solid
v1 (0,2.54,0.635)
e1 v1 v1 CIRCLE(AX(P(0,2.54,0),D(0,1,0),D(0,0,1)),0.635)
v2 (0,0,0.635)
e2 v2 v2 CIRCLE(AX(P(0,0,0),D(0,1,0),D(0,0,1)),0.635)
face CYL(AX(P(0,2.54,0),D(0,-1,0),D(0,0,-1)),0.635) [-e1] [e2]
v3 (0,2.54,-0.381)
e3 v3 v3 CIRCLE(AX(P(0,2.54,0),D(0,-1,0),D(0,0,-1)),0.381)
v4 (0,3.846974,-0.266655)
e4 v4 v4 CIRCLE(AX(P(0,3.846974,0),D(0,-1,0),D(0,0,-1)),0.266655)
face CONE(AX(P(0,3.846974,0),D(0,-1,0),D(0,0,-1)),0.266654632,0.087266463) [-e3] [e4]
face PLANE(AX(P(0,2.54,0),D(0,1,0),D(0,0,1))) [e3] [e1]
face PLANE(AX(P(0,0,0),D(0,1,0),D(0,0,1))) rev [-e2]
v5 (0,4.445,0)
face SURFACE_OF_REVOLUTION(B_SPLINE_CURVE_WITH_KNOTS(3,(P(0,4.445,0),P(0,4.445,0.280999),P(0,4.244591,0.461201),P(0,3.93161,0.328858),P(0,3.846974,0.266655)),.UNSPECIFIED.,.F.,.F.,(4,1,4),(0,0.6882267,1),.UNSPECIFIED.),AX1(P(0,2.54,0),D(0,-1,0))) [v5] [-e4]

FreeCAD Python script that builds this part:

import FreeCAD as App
import Part
import Sketcher

V = App.Vector
Q = App.Units.Quantity

doc = App.newDocument("Part")
body = doc.addObject("PartDesign::Body", "Body")

sketch1 = doc.addObject("Sketcher::SketchObject", "Sketch")
body.addObject(sketch1)
sketch1.AttachmentSupport = (doc.XZ_Plane, [""])
sketch1.MapMode = "FlatFace"
sketch1.addGeometry(Part.Circle(V(0, 0, 0), V(0, 0, 1), 0.6), False)
sketch1.addConstraint([
    Sketcher.Constraint("Coincident", 0, 3, -1, 1),
    Sketcher.Constraint("Diameter", 0, Q("0.05 in")),
])
pad1 = doc.addObject("PartDesign::Pad", "Pad")
body.addObject(pad1)
pad1.Profile = sketch1
pad1.Length = Q("0.1 in")
pad1.Reversed = True

sketch2 = doc.addObject("Sketcher::SketchObject", "Sketch001")
body.addObject(sketch2)
sketch2.AttachmentSupport = (doc.YZ_Plane, [""])
sketch2.MapMode = "FlatFace"
sketch2.addGeometry([
    Part.LineSegment(V(3.846974, 0.266655, 0), V(2.54, 0.381, 0)),
    Part.LineSegment(V(2.54, 0.381, 0), V(2.54, 0, 0)),
    Part.LineSegment(V(2.54, 0, 0), V(4.445, 0, 0)),
    Part.BSplineCurve([V(3.846974, 0.266655, 0), V(3.93161, 0.328858, 0), V(4.244591, 0.461201, 0), V(4.445, 0.280999, 0), V(4.445, 0, 0)], [4, 1, 4], [0, 0.3117733, 1], False, 3, [1, 1, 1, 1, 1], False),
], False)
sketch2.addConstraint([
    Sketcher.Constraint("Block", 3),
    Sketcher.Constraint("Coincident", 0, 2, 1, 1),
    Sketcher.Constraint("Coincident", 1, 2, 2, 1),
    Sketcher.Constraint("Coincident", 2, 2, 3, 2),
    Sketcher.Constraint("Coincident", 3, 1, 0, 1),
    Sketcher.Constraint("Vertical", 1),
    Sketcher.Constraint("Horizontal", 2),
    Sketcher.Constraint("DistanceX", -1, 1, 0, 2, Q("0.1 in")),
    Sketcher.Constraint("DistanceY", 1, 2, 1, 1, Q("0.015 in")),
])
revolution = doc.addObject("PartDesign::Revolution", "Revolution")
body.addObject(revolution)
revolution.Profile = sketch2
revolution.ReferenceAxis = (sketch2, ["H_Axis"])
revolution.Angle = 360

doc.recompute()
